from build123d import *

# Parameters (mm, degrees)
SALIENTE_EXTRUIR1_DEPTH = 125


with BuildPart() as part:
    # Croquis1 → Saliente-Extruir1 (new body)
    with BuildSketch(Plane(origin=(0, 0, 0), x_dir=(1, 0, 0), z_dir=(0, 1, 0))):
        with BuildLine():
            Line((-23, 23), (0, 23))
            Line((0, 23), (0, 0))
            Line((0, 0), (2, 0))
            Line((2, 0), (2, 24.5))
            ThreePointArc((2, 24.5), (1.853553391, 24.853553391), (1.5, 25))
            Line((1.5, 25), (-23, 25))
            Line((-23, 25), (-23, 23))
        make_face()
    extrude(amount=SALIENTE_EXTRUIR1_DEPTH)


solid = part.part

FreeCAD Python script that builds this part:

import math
import FreeCAD as App
import Part
import Sketcher

doc = App.newDocument("Part")
body = doc.addObject("PartDesign::Body", "Body")

sketch1 = body.newObject("Sketcher::SketchObject", "Sketch")
sketch1.AttachmentSupport = (doc.getObject("XZ_Plane"), [""])
sketch1.MapMode = "FlatFace"
sketch1.addGeometry(Part.LineSegment(App.Vector(-23, -23, 0), App.Vector(0, -23, 0)), False)
sketch1.addGeometry(Part.LineSegment(App.Vector(0, -23, 0), App.Vector(0, 0, 0)), False)
sketch1.addGeometry(Part.LineSegment(App.Vector(0, 0, 0), App.Vector(2, 0, 0)), False)
sketch1.addGeometry(Part.LineSegment(App.Vector(2, 0, 0), App.Vector(2, -24.5, 0)), False)
sketch1.addGeometry(Part.ArcOfCircle(Part.Circle(App.Vector(1.5, -24.5, 0), App.Vector(0, 0, 1), 0.5), math.radians(-90), math.radians(0)), False)
sketch1.addGeometry(Part.LineSegment(App.Vector(1.5, -25, 0), App.Vector(-23, -25, 0)), False)
sketch1.addGeometry(Part.LineSegment(App.Vector(-23, -25, 0), App.Vector(-23, -23, 0)), False)
sketch1.addConstraint(Sketcher.Constraint("Coincident", 0, 2, 1, 1))
sketch1.addConstraint(Sketcher.Constraint("Coincident", 1, 2, 2, 1))
sketch1.addConstraint(Sketcher.Constraint("Coincident", 2, 2, 3, 1))
sketch1.addConstraint(Sketcher.Constraint("Tangent", 3, 2, 4, 2))
sketch1.addConstraint(Sketcher.Constraint("Tangent", 4, 1, 5, 1))
sketch1.addConstraint(Sketcher.Constraint("Coincident", 5, 2, 6, 1))
sketch1.addConstraint(Sketcher.Constraint("Coincident", 6, 2, 0, 1))
sketch1.addConstraint(Sketcher.Constraint("Horizontal", 0))
sketch1.addConstraint(Sketcher.Constraint("Vertical", 1))
sketch1.addConstraint(Sketcher.Constraint("Horizontal", 2))
sketch1.addConstraint(Sketcher.Constraint("Vertical", 3))
sketch1.addConstraint(Sketcher.Constraint("Horizontal", 5))
sketch1.addConstraint(Sketcher.Constraint("Vertical", 6))
sketch1.addConstraint(Sketcher.Constraint("Coincident", 1, 2, -1, 1))
sketch1.addConstraint(Sketcher.Constraint("Equal", 0, 1))
sketch1.addConstraint(Sketcher.Constraint("Equal", 5, 3))
sketch1.addConstraint(Sketcher.Constraint("Radius", 4, 0.5))
sketch1.addConstraint(Sketcher.Constraint("DistanceX", 0, 1, 0, 2, 23.0))
sketch1.addConstraint(Sketcher.Constraint("DistanceX", 2, 1, 2, 2, 2.0))
pad1 = body.newObject("PartDesign::Pad", "Pad")
pad1.Profile = sketch1
pad1.Length = 125
pad1.Reversed = True

doc.recompute()
